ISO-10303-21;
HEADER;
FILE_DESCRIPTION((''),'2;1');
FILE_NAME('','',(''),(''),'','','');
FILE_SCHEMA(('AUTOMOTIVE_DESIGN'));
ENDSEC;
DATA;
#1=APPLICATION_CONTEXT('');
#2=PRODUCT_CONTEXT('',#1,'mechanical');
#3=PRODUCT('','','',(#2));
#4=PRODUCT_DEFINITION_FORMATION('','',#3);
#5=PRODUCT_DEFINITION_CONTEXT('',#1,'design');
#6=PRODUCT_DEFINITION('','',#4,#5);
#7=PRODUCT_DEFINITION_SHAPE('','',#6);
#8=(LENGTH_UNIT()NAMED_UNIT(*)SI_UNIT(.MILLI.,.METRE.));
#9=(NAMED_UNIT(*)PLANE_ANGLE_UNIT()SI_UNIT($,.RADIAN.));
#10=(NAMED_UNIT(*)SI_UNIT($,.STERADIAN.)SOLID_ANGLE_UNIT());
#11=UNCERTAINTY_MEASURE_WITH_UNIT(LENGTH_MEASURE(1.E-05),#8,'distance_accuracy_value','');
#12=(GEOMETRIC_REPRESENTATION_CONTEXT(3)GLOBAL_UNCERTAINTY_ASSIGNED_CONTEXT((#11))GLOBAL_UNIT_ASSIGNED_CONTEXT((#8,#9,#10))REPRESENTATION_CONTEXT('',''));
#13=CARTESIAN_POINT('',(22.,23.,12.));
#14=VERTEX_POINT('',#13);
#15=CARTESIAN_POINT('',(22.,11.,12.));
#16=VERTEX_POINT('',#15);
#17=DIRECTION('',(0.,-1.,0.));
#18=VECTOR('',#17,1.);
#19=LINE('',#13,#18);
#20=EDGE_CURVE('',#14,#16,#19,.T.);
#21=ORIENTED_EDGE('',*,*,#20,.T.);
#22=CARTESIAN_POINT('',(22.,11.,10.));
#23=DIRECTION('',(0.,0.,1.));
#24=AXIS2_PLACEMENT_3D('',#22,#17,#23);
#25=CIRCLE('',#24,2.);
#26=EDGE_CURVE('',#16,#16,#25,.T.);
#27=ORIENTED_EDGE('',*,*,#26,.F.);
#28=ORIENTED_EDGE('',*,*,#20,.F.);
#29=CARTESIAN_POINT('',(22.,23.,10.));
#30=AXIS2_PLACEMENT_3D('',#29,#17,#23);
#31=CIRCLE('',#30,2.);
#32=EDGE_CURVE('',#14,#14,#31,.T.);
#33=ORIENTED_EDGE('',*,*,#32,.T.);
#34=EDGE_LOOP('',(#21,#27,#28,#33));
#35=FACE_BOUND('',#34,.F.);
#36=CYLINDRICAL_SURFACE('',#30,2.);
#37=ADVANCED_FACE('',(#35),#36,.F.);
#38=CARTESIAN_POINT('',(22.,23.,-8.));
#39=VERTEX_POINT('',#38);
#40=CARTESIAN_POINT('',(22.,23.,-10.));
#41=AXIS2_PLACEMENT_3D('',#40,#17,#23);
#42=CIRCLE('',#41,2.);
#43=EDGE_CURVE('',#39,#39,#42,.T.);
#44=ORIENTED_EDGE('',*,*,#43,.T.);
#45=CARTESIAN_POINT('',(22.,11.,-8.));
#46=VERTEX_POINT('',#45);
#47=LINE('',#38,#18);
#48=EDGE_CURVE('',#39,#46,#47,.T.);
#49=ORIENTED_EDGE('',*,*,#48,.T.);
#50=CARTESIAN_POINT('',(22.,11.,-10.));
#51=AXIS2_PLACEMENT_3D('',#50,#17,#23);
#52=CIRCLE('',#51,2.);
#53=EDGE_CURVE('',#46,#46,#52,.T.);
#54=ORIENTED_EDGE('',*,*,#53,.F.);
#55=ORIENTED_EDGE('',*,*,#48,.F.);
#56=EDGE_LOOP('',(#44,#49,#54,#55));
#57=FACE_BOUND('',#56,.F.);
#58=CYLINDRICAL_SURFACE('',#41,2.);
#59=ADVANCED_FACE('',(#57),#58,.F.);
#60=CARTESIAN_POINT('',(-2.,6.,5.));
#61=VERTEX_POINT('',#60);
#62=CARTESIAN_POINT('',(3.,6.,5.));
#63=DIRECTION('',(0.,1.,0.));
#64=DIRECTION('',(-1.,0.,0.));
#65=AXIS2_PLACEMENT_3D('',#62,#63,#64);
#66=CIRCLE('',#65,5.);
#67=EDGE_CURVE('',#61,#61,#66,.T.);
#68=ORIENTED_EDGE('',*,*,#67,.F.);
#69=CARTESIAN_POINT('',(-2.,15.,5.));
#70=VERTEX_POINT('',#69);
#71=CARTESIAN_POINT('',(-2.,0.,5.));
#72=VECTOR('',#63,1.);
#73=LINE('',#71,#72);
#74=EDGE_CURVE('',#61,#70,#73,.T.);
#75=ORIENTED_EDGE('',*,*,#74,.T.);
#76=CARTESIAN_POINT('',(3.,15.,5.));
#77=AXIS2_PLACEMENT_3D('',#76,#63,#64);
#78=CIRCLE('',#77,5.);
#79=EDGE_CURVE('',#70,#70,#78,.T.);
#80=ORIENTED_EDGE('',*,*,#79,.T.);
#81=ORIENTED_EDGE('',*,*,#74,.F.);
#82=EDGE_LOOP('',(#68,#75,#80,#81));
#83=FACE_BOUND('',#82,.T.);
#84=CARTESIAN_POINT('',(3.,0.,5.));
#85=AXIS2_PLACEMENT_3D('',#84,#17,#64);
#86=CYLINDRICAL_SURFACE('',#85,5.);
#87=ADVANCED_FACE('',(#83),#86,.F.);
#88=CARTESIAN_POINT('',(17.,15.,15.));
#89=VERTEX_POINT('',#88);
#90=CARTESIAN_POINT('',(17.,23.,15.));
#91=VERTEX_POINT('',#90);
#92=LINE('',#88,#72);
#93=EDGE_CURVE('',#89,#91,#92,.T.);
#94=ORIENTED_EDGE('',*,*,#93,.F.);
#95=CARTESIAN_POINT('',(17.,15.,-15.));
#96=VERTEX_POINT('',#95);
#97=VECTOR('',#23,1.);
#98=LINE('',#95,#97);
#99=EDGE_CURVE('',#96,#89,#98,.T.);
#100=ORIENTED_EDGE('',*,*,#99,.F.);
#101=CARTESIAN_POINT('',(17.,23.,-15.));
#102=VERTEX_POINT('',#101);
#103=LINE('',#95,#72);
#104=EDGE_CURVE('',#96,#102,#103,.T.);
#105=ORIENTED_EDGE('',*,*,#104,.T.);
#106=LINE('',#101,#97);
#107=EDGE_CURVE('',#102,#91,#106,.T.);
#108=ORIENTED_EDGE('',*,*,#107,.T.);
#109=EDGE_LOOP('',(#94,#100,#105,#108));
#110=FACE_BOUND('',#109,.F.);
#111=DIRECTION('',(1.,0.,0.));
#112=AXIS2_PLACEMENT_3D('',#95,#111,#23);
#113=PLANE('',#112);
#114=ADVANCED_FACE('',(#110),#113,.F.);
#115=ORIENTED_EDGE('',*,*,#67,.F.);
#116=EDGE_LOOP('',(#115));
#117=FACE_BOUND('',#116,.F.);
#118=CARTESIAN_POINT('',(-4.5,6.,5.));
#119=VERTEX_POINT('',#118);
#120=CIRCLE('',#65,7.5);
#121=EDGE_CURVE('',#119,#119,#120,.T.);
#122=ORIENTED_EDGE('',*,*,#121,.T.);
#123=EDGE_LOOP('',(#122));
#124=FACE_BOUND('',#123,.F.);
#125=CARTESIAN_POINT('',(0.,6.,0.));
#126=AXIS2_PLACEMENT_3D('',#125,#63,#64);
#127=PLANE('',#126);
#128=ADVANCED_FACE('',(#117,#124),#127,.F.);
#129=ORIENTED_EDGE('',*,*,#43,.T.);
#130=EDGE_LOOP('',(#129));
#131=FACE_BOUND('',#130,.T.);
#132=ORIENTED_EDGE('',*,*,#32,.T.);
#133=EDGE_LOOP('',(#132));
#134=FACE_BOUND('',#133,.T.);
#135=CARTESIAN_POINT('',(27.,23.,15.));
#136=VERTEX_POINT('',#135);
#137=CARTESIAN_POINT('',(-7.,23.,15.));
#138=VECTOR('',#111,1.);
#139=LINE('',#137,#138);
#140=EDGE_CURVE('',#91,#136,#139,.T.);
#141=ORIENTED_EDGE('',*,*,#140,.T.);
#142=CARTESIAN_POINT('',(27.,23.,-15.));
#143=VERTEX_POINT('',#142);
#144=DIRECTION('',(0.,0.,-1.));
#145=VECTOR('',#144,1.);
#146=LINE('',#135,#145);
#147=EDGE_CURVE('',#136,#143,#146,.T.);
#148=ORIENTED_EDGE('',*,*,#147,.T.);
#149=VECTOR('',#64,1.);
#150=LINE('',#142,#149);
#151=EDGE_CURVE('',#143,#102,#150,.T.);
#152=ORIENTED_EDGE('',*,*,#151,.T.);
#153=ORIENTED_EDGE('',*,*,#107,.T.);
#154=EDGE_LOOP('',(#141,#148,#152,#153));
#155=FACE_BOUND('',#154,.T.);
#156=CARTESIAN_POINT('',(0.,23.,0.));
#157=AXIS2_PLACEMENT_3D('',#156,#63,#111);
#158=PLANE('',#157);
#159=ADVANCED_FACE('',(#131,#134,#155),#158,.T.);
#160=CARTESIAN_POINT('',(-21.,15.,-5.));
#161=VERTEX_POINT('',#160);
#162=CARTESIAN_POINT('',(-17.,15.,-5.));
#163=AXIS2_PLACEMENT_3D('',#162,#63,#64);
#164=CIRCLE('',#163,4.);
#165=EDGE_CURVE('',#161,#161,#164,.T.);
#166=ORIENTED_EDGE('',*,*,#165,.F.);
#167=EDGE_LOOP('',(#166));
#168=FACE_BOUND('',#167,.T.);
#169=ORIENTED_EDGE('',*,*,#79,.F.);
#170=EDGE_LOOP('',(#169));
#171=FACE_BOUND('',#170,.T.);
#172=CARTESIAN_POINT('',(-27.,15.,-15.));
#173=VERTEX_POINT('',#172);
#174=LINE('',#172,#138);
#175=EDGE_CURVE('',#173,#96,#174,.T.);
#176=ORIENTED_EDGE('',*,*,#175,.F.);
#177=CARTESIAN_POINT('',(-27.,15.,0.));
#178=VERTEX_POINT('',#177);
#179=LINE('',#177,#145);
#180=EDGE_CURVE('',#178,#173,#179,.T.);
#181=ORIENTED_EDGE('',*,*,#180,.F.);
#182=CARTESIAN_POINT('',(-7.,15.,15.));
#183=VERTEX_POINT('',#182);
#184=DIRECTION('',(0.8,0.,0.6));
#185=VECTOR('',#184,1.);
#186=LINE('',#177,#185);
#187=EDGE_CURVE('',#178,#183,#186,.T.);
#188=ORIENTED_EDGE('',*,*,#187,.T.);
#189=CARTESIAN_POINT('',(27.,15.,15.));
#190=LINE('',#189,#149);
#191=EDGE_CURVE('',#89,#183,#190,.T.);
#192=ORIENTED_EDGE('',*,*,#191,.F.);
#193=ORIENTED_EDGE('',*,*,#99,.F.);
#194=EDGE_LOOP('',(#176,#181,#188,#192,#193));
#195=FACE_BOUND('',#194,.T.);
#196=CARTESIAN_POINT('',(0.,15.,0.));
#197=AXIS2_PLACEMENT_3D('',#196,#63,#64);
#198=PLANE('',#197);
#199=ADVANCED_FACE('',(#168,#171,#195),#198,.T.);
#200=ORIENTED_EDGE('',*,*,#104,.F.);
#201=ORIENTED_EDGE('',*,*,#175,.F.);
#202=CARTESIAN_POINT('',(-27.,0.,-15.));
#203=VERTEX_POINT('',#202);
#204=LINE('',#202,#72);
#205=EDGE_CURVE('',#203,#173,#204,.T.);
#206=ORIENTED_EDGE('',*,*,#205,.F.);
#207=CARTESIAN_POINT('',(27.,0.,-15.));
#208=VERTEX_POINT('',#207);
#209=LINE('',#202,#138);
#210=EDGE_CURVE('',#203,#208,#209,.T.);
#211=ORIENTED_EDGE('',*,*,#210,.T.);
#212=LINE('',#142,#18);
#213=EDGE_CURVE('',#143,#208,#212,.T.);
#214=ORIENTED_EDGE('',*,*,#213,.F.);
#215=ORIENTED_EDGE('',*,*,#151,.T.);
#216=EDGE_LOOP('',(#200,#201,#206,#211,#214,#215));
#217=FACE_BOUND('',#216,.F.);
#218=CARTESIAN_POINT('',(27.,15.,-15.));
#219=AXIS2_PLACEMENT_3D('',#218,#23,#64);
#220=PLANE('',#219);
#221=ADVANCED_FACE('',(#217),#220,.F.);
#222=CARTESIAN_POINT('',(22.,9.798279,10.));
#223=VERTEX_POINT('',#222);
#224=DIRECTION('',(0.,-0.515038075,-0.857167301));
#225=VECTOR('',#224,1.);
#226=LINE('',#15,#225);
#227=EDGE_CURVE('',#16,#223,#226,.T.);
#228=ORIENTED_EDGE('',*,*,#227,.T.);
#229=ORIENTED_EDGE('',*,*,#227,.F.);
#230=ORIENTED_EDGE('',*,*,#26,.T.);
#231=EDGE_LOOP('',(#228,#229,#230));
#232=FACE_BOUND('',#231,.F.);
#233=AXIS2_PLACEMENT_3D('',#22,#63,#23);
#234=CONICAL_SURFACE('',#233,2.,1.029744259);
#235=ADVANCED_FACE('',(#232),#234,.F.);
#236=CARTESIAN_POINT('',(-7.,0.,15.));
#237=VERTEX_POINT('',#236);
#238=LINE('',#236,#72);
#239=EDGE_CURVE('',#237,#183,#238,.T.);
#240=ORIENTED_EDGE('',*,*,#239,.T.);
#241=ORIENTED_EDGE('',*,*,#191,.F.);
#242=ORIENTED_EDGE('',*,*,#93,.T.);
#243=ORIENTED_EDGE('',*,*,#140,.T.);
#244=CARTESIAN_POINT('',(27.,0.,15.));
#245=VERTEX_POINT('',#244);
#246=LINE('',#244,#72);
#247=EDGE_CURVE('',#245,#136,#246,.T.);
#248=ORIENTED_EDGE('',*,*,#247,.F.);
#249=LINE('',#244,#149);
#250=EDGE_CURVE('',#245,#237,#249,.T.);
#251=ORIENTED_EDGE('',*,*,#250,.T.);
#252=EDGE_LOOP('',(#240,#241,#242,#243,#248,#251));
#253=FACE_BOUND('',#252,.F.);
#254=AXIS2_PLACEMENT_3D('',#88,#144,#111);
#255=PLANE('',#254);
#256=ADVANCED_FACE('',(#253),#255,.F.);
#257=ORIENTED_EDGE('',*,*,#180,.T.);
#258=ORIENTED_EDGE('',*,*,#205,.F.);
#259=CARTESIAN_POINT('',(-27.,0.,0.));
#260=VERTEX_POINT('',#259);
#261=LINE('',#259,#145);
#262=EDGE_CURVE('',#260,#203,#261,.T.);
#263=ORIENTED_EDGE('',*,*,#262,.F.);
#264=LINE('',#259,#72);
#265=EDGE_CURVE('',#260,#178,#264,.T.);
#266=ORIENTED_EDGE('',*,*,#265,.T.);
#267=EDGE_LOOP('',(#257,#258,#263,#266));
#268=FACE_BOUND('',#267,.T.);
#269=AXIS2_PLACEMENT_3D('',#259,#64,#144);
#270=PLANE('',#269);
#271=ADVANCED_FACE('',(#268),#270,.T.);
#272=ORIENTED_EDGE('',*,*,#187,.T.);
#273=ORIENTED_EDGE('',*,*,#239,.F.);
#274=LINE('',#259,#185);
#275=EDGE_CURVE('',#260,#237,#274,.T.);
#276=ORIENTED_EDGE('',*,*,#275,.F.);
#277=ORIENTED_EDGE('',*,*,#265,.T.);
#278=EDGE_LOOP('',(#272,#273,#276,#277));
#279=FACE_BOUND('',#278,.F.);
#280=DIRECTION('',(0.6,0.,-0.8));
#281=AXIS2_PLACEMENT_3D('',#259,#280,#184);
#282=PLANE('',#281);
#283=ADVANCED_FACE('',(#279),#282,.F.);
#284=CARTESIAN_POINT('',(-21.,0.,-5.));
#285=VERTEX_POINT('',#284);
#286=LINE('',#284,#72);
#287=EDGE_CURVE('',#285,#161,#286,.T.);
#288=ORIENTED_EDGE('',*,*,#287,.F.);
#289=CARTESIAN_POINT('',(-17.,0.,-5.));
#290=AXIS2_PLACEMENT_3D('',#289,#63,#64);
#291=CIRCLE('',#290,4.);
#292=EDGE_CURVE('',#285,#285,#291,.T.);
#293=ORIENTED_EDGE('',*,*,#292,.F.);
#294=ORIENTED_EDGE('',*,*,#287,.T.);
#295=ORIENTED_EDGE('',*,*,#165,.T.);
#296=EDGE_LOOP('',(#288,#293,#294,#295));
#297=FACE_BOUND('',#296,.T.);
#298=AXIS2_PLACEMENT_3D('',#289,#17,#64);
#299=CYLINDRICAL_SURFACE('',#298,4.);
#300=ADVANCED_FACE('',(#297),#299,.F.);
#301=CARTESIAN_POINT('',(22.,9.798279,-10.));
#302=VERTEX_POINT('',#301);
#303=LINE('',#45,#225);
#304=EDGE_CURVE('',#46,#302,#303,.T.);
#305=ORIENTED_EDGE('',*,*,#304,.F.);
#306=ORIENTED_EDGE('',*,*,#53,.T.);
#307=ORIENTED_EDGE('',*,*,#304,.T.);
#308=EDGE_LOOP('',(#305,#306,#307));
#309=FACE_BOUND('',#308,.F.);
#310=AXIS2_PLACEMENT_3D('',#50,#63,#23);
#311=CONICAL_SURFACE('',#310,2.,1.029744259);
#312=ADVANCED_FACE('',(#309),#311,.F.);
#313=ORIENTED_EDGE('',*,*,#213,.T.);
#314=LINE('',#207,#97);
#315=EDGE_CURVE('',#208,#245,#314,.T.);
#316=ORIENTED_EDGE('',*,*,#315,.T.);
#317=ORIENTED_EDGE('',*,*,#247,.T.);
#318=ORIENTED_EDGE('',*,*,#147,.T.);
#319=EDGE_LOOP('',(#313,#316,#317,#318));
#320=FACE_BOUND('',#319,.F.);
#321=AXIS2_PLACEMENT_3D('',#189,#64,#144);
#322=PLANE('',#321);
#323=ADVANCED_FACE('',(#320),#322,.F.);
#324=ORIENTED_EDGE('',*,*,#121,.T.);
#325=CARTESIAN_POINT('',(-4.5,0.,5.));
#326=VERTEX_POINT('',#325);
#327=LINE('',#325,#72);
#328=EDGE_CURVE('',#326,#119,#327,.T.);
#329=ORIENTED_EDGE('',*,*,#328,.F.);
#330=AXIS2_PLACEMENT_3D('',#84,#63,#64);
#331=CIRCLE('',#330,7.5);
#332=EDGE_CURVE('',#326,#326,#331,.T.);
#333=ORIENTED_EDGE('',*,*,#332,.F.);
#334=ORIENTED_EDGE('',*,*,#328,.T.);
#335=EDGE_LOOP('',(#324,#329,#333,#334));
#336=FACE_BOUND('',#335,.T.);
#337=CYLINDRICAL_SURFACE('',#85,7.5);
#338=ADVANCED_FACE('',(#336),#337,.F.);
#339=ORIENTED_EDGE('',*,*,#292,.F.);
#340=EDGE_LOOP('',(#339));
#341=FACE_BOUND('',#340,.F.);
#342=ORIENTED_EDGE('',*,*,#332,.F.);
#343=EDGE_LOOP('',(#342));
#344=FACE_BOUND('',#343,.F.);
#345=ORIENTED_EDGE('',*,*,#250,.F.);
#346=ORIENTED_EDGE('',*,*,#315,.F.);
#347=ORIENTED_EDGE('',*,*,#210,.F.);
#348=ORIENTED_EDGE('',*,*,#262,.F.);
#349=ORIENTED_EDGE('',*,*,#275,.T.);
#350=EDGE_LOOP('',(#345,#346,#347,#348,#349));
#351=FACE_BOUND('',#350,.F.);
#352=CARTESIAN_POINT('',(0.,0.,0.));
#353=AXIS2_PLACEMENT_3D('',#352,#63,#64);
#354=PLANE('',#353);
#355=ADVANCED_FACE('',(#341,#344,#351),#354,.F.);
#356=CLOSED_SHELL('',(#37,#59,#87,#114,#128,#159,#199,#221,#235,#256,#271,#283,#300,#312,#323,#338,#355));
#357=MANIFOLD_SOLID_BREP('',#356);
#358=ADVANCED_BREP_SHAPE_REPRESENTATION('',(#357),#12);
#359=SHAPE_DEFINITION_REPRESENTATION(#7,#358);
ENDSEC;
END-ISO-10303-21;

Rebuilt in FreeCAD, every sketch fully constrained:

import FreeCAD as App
import Part
import Sketcher
from FreeCAD import Vector


def add_polygon(sketch, points):
    """Adds a closed chain of lines whose ends are joined by coincident constraints."""
    first, n = sketch.GeometryCount, len(points)
    for a, b in zip(points, points[1:] + points[:1]):
        sketch.addGeometry(Part.LineSegment(App.Vector(*a, 0), App.Vector(*b, 0)), False)
    for i in range(n):
        sketch.addConstraint(Sketcher.Constraint("Coincident", first + i, 2, first + (i + 1) % n, 1))

doc = App.newDocument("Part")
body = doc.addObject("PartDesign::Body", "Body")

# Sketch on XZ plane
sketch1 = doc.addObject("Sketcher::SketchObject", "Sketch")
body.addObject(sketch1)
sketch1.AttachmentSupport = (doc.XZ_Plane, [""])
sketch1.MapMode = "FlatFace"
add_polygon(sketch1, [(-7, 15), (27, 15), (27, -15), (-27, -15), (-27, 0)])  # lines 0-4
sketch1.addGeometry(Part.Circle(Vector(-17, -5, 0), Vector(0, 0, 1), 4), False)  # 5
sketch1.addGeometry(Part.Circle(Vector(3, 5, 0), Vector(0, 0, 1), 5), False)  # 6
sketch1.addConstraint(Sketcher.Constraint("Horizontal", 0))
sketch1.addConstraint(Sketcher.Constraint("Vertical", 1))
sketch1.addConstraint(Sketcher.Constraint("Horizontal", 2))
sketch1.addConstraint(Sketcher.Constraint("Vertical", 3))
sketch1.addConstraint(Sketcher.Constraint("Symmetric", 0, 2, 2, 2, -1, 1))
sketch1.addConstraint(Sketcher.Constraint("PointOnObject", 3, 2, -1))
sketch1.addConstraint(Sketcher.Constraint("Diameter", 5, 8.0))
sketch1.addConstraint(Sketcher.Constraint("Diameter", 6, 10.0))
sketch1.addConstraint(Sketcher.Constraint("DistanceX", 2, 2, 2, 1, 54.0))
sketch1.addConstraint(Sketcher.Constraint("DistanceY", 1, 2, 1, 1, 30.0))
sketch1.addConstraint(Sketcher.Constraint("DistanceX", 5, 3, 6, 3, 20.0))
sketch1.addConstraint(Sketcher.Constraint("DistanceY", 5, 3, 6, 3, 10.0))
sketch1.addConstraint(Sketcher.Constraint("DistanceY", 6, 3, 0, 2, 10.0))
sketch1.addConstraint(Sketcher.Constraint("DistanceX", 2, 2, 5, 3, 10.0))
sketch1.addConstraint(Sketcher.Constraint("DistanceX", 4, 2, 6, 3, 10.0))
pad1 = doc.addObject("PartDesign::Pad", "Pad")
body.addObject(pad1)
pad1.Profile = sketch1
pad1.Length = 15
pad1.Reversed = True

# Sketch on XZ plane
sketch2 = doc.addObject("Sketcher::SketchObject", "Sketch001")
body.addObject(sketch2)
sketch2.AttachmentSupport = (doc.XZ_Plane, [""])
sketch2.MapMode = "FlatFace"
sketch2.addGeometry(Part.Circle(Vector(3, 5, 0), Vector(0, 0, 1), 8), False)
sketch2.addGeometry(Part.Circle(Vector(3, 5, 0), Vector(0, 0, 1), 5), False)
sketch2.addConstraint(Sketcher.Constraint("Coincident", 1, 3, 0, 3))
sketch2.addConstraint(Sketcher.Constraint("Diameter", 0, 15.0))
sketch2.addConstraint(Sketcher.Constraint("Diameter", 1, 10.0))
sketch2.addConstraint(Sketcher.Constraint("DistanceX", -1, 1, 0, 3, 3.0))
sketch2.addConstraint(Sketcher.Constraint("DistanceY", -1, 1, 0, 3, 5.0))
pocket1 = doc.addObject("PartDesign::Pocket", "Pocket")
body.addObject(pocket1)
pocket1.Profile = sketch2
pocket1.Length = 6

# Sketch on XZ plane
sketch3 = doc.addObject("Sketcher::SketchObject", "Sketch002")
body.addObject(sketch3)
sketch3.AttachmentSupport = (doc.XZ_Plane, [""])
sketch3.MapMode = "FlatFace"
sketch3.AttachmentOffset = App.Placement(Vector(0, 0, -15), App.Rotation())
add_polygon(sketch3, [(17, -15), (17, 15), (27, 15), (27, -15)])  # lines 0-3
sketch3.addConstraint(Sketcher.Constraint("Vertical", 0))
sketch3.addConstraint(Sketcher.Constraint("Horizontal", 1))
sketch3.addConstraint(Sketcher.Constraint("Vertical", 2))
sketch3.addConstraint(Sketcher.Constraint("Horizontal", 3))
sketch3.addConstraint(Sketcher.Constraint("DistanceX", 1, 1, 1, 2, 10.0))
sketch3.addConstraint(Sketcher.Constraint("DistanceY", 0, 1, 0, 2, 30.0))
sketch3.addConstraint(Sketcher.Constraint("DistanceX", -1, 1, 0, 2, 17.0))
sketch3.addConstraint(Sketcher.Constraint("DistanceY", -1, 1, 0, 2, 15.0))
pad2 = doc.addObject("PartDesign::Pad", "Pad001")
body.addObject(pad2)
pad2.Profile = sketch3
pad2.Length = 8
pad2.Reversed = True

# Sketch on XZ plane
sketch4 = doc.addObject("Sketcher::SketchObject", "Sketch003")
body.addObject(sketch4)
sketch4.AttachmentSupport = (doc.XZ_Plane, [""])
sketch4.MapMode = "FlatFace"
sketch4.AttachmentOffset = App.Placement(Vector(0, 0, -23), App.Rotation())
sketch4.addGeometry(Part.Circle(Vector(22, 10, 0), Vector(0, 0, 1), 2), False)
sketch4.addConstraint(Sketcher.Constraint("Diameter", 0, 4.0))
sketch4.addConstraint(Sketcher.Constraint("DistanceX", -1, 1, 0, 3, 22.0))
sketch4.addConstraint(Sketcher.Constraint("DistanceY", -1, 1, 0, 3, 10.0))
doc.recompute()
hole = doc.addObject("PartDesign::Hole", "Hole")
body.addObject(hole)
hole.Profile = sketch4
hole.ThreadType = "None"
hole.Diameter = 4
hole.DepthType = "Dimension"
hole.Depth = 12
hole.DrillPoint = "Angled"
hole.DrillPointAngle = 118
hole.Reversed = True

# Sketch on XZ plane
sketch5 = doc.addObject("Sketcher::SketchObject", "Sketch004")
body.addObject(sketch5)
sketch5.AttachmentSupport = (doc.XZ_Plane, [""])
sketch5.MapMode = "FlatFace"
sketch5.AttachmentOffset = App.Placement(Vector(0, 0, -23), App.Rotation())
sketch5.addGeometry(Part.Circle(Vector(22, -10, 0), Vector(0, 0, 1), 2), False)
sketch5.addConstraint(Sketcher.Constraint("Diameter", 0, 4.0))
sketch5.addConstraint(Sketcher.Constraint("DistanceX", -1, 1, 0, 3, 22.0))
sketch5.addConstraint(Sketcher.Constraint("DistanceY", 0, 3, -1, 1, 10.0))
doc.recompute()
hole2 = doc.addObject("PartDesign::Hole", "Hole001")
body.addObject(hole2)
hole2.Profile = sketch5
hole2.ThreadType = "None"
hole2.Diameter = 4
hole2.DepthType = "Dimension"
hole2.Depth = 12
hole2.DrillPoint = "Angled"
hole2.DrillPointAngle = 118
hole2.Reversed = True

doc.recompute()
